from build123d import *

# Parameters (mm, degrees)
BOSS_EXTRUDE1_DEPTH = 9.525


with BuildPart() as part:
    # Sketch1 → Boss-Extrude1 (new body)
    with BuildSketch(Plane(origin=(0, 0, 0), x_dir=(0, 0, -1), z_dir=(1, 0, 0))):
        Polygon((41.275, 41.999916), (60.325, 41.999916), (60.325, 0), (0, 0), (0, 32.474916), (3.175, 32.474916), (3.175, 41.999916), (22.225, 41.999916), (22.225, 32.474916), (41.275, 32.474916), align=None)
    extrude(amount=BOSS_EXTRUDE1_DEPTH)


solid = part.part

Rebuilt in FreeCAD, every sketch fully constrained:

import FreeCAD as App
import Part
import Sketcher

V = App.Vector
Q = App.Units.Quantity

doc = App.newDocument("Part")
params = doc.addObject("Spreadsheet::Sheet", "Params")
for row, (alias, value) in enumerate([
    ("sketch1_height", "0.75 in"),
    ("sketch1_width", "0.375 in"),
    ("sketch1_height2", "0.125 in"),
    ("pad1_length", "0.375 in"),
], start=1):
    params.set(f"A{row}", alias)
    params.set(f"B{row}", "=" + value)
    params.setAlias(f"B{row}", alias)

body = doc.addObject("PartDesign::Body", "Body")

sketch1 = doc.addObject("Sketcher::SketchObject", "Sketch")
body.addObject(sketch1)
sketch1.AttachmentSupport = (doc.YZ_Plane, [""])
sketch1.MapMode = "FlatFace"
sketch1.addGeometry([
    Part.LineSegment(V(42, -60.3, 0), V(42, -41.3, 0)),
    Part.LineSegment(V(42, -41.3, 0), V(32.5, -41.3, 0)),
    Part.LineSegment(V(32.5, -41.3, 0), V(32.5, -22.2, 0)),
    Part.LineSegment(V(32.5, -22.2, 0), V(42, -22.2, 0)),
    Part.LineSegment(V(42, -22.2, 0), V(42, -3.2, 0)),
    Part.LineSegment(V(42, -3.2, 0), V(32.5, -3.2, 0)),
    Part.LineSegment(V(32.5, -3.2, 0), V(32.5, 0, 0)),
    Part.LineSegment(V(32.5, 0, 0), V(0, 0, 0)),
    Part.LineSegment(V(0, 0, 0), V(0, -60.3, 0)),
    Part.LineSegment(V(0, -60.3, 0), V(42, -60.3, 0)),
], False)
sketch1.addConstraint([
    Sketcher.Constraint("Coincident", 0, 2, 1, 1),
    Sketcher.Constraint("Coincident", 1, 2, 2, 1),
    Sketcher.Constraint("Coincident", 2, 2, 3, 1),
    Sketcher.Constraint("Coincident", 3, 2, 4, 1),
    Sketcher.Constraint("Coincident", 4, 2, 5, 1),
    Sketcher.Constraint("Coincident", 5, 2, 6, 1),
    Sketcher.Constraint("Coincident", 6, 2, 7, 1),
    Sketcher.Constraint("Coincident", 7, 2, 8, 1),
    Sketcher.Constraint("Coincident", 8, 2, 9, 1),
    Sketcher.Constraint("Coincident", 9, 2, 0, 1),
    Sketcher.Constraint("Vertical", 0),
    Sketcher.Constraint("Horizontal", 1),
    Sketcher.Constraint("Vertical", 2),
    Sketcher.Constraint("Horizontal", 3),
    Sketcher.Constraint("Vertical", 4),
    Sketcher.Constraint("Horizontal", 5),
    Sketcher.Constraint("Vertical", 6),
    Sketcher.Constraint("Horizontal", 7),
    Sketcher.Constraint("Vertical", 8),
    Sketcher.Constraint("Horizontal", 9),
    Sketcher.Constraint("Coincident", 7, 2, -1, 1),
    Sketcher.Constraint("Vertical", 0, 2, 3, 2),
    Sketcher.Constraint("Vertical", 2, 2, 5, 2),
    Sketcher.Constraint("Equal", 0, 2),
    Sketcher.Constraint("Equal", 2, 4),
    Sketcher.Constraint("DistanceY", 0, 1, 0, 2, Q("0.75 in")),
    Sketcher.Constraint("DistanceX", 1, 2, 1, 1, Q("0.375 in")),
    Sketcher.Constraint("DistanceY", 6, 1, 6, 2, Q("0.125 in")),
    Sketcher.Constraint("DistanceX", 7, 2, 7, 1, 32.474916),
])
sketch1.setExpression("Constraints[25]", "Params.sketch1_height")
sketch1.setExpression("Constraints[26]", "Params.sketch1_width")
sketch1.setExpression("Constraints[27]", "Params.sketch1_height2")
pad1 = doc.addObject("PartDesign::Pad", "Pad")
body.addObject(pad1)
pad1.Profile = sketch1
pad1.setExpression("Length", "Params.pad1_length")

doc.recompute()
